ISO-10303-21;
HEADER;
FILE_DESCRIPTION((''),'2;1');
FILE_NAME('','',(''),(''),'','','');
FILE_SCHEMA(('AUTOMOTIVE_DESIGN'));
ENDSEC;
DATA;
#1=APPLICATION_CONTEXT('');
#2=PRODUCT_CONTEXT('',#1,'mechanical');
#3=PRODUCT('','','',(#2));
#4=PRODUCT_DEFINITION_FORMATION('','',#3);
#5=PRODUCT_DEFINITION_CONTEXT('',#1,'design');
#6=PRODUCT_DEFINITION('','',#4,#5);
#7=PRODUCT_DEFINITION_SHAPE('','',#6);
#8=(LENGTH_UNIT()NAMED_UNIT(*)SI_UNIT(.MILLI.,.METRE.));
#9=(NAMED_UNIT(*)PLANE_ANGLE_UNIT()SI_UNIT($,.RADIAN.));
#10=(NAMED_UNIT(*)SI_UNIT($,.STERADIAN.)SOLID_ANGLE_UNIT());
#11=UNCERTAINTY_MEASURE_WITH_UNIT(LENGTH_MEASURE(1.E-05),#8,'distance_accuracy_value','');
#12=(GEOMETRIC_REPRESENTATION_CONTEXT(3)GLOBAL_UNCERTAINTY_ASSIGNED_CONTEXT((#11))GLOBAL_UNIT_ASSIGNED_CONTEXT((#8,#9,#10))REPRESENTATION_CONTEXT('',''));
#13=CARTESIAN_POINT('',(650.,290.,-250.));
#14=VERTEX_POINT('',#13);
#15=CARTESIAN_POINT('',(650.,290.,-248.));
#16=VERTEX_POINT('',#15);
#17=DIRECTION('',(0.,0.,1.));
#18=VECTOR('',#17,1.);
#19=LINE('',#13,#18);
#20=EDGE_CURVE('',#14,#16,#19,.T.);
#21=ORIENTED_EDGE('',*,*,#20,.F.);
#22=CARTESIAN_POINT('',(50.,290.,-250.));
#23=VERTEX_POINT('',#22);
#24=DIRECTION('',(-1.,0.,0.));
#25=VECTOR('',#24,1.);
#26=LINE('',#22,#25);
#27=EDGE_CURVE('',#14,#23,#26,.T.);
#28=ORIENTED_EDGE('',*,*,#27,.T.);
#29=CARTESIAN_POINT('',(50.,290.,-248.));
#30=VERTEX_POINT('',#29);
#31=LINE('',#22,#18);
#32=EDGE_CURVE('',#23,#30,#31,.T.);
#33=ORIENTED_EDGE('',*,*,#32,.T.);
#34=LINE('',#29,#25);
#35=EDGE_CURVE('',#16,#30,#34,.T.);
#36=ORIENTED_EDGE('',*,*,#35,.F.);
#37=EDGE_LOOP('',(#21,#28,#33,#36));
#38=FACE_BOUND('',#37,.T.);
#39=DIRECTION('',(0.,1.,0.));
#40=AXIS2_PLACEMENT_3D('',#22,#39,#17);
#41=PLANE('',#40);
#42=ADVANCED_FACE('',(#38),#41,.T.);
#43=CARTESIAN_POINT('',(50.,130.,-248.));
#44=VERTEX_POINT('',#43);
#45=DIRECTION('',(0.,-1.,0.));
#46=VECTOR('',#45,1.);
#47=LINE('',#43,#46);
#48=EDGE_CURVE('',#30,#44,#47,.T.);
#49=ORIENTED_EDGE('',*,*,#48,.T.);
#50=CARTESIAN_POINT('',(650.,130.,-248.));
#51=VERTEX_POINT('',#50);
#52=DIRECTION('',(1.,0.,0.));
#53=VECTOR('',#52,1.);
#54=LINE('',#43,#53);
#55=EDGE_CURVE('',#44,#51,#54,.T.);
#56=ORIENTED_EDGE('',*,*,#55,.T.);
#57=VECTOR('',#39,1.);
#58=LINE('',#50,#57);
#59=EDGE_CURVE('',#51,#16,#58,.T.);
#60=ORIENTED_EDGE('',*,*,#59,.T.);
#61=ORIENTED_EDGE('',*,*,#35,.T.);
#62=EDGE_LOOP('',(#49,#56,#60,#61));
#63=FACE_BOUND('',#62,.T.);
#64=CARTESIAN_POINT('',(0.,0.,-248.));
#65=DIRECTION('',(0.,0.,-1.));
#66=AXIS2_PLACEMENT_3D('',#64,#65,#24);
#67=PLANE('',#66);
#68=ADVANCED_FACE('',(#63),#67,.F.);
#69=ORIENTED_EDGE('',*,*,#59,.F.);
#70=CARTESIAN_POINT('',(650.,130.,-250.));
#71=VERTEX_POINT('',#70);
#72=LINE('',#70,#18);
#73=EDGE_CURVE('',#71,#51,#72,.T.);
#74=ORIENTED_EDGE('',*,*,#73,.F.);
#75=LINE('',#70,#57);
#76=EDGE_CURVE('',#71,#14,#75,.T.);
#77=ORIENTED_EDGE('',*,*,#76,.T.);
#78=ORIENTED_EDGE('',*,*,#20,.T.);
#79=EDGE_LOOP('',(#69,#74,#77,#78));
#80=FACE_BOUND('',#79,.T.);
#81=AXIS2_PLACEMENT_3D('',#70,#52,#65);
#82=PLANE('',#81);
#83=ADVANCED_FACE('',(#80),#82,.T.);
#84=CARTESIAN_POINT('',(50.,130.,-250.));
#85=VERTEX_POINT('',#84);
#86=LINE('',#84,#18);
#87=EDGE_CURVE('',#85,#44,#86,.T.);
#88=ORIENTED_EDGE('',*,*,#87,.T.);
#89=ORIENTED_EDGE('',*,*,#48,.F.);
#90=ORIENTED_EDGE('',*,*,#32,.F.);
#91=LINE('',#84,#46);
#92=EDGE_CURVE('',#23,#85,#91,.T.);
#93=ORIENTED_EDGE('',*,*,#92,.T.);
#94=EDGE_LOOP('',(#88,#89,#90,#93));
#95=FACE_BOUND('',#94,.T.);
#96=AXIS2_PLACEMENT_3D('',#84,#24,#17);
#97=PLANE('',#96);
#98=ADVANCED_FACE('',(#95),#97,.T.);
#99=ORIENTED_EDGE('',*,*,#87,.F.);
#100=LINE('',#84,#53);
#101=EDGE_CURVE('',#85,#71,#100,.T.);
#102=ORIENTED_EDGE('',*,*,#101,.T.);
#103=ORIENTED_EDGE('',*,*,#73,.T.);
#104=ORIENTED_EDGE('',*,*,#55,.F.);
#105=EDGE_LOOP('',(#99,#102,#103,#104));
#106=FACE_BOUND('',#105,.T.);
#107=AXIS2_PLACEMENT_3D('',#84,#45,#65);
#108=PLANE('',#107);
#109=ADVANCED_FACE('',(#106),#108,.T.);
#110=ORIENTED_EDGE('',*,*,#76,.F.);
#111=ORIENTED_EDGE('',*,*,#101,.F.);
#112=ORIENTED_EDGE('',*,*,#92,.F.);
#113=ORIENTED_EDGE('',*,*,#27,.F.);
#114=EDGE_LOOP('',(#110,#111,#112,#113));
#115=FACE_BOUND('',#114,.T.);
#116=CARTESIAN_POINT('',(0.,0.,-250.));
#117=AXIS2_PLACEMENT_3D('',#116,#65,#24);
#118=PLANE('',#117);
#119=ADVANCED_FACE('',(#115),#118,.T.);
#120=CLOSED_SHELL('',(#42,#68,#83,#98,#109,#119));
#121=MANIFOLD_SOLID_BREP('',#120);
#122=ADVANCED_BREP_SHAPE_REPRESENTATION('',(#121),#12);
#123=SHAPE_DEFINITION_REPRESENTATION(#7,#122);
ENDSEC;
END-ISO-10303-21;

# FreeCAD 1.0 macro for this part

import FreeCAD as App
import Part
import Sketcher

V = App.Vector


def add_polygon(sketch, points):
    """Adds a closed chain of lines whose ends are joined by coincident constraints."""
    first, n = sketch.GeometryCount, len(points)
    for a, b in zip(points, points[1:] + points[:1]):
        sketch.addGeometry(Part.LineSegment(App.Vector(*a, 0), App.Vector(*b, 0)), False)
    for i in range(n):
        sketch.addConstraint(Sketcher.Constraint("Coincident", first + i, 2, first + (i + 1) % n, 1))

doc = App.newDocument("Part")
body = doc.addObject("PartDesign::Body", "Body")

# Sketch on XY plane
sketch1 = body.newObject("Sketcher::SketchObject", "Sketch")
sketch1.AttachmentSupport = (doc.getObject("XY_Plane"), [""])
sketch1.MapMode = "FlatFace"
sketch1.AttachmentOffset = App.Placement(V(0, 0, -248), App.Rotation())
add_polygon(sketch1, [(50, 290), (50, 130), (650, 130), (650, 290)])  # lines 0-3
sketch1.addConstraint(Sketcher.Constraint("Vertical", 0))
sketch1.addConstraint(Sketcher.Constraint("Horizontal", 1))
sketch1.addConstraint(Sketcher.Constraint("Vertical", 2))
sketch1.addConstraint(Sketcher.Constraint("Horizontal", 3))
sketch1.addConstraint(Sketcher.Constraint("DistanceX", 1, 1, 1, 2, 600.0))
sketch1.addConstraint(Sketcher.Constraint("DistanceY", 0, 2, 0, 1, 160.0))
sketch1.addConstraint(Sketcher.Constraint("DistanceX", -1, 1, 0, 2, 50.0))
sketch1.addConstraint(Sketcher.Constraint("DistanceY", -1, 1, 0, 2, 130.0))
pad1 = body.newObject("PartDesign::Pad", "Pad")
pad1.Profile = sketch1
pad1.Length = 2
pad1.Reversed = True

doc.recompute()
